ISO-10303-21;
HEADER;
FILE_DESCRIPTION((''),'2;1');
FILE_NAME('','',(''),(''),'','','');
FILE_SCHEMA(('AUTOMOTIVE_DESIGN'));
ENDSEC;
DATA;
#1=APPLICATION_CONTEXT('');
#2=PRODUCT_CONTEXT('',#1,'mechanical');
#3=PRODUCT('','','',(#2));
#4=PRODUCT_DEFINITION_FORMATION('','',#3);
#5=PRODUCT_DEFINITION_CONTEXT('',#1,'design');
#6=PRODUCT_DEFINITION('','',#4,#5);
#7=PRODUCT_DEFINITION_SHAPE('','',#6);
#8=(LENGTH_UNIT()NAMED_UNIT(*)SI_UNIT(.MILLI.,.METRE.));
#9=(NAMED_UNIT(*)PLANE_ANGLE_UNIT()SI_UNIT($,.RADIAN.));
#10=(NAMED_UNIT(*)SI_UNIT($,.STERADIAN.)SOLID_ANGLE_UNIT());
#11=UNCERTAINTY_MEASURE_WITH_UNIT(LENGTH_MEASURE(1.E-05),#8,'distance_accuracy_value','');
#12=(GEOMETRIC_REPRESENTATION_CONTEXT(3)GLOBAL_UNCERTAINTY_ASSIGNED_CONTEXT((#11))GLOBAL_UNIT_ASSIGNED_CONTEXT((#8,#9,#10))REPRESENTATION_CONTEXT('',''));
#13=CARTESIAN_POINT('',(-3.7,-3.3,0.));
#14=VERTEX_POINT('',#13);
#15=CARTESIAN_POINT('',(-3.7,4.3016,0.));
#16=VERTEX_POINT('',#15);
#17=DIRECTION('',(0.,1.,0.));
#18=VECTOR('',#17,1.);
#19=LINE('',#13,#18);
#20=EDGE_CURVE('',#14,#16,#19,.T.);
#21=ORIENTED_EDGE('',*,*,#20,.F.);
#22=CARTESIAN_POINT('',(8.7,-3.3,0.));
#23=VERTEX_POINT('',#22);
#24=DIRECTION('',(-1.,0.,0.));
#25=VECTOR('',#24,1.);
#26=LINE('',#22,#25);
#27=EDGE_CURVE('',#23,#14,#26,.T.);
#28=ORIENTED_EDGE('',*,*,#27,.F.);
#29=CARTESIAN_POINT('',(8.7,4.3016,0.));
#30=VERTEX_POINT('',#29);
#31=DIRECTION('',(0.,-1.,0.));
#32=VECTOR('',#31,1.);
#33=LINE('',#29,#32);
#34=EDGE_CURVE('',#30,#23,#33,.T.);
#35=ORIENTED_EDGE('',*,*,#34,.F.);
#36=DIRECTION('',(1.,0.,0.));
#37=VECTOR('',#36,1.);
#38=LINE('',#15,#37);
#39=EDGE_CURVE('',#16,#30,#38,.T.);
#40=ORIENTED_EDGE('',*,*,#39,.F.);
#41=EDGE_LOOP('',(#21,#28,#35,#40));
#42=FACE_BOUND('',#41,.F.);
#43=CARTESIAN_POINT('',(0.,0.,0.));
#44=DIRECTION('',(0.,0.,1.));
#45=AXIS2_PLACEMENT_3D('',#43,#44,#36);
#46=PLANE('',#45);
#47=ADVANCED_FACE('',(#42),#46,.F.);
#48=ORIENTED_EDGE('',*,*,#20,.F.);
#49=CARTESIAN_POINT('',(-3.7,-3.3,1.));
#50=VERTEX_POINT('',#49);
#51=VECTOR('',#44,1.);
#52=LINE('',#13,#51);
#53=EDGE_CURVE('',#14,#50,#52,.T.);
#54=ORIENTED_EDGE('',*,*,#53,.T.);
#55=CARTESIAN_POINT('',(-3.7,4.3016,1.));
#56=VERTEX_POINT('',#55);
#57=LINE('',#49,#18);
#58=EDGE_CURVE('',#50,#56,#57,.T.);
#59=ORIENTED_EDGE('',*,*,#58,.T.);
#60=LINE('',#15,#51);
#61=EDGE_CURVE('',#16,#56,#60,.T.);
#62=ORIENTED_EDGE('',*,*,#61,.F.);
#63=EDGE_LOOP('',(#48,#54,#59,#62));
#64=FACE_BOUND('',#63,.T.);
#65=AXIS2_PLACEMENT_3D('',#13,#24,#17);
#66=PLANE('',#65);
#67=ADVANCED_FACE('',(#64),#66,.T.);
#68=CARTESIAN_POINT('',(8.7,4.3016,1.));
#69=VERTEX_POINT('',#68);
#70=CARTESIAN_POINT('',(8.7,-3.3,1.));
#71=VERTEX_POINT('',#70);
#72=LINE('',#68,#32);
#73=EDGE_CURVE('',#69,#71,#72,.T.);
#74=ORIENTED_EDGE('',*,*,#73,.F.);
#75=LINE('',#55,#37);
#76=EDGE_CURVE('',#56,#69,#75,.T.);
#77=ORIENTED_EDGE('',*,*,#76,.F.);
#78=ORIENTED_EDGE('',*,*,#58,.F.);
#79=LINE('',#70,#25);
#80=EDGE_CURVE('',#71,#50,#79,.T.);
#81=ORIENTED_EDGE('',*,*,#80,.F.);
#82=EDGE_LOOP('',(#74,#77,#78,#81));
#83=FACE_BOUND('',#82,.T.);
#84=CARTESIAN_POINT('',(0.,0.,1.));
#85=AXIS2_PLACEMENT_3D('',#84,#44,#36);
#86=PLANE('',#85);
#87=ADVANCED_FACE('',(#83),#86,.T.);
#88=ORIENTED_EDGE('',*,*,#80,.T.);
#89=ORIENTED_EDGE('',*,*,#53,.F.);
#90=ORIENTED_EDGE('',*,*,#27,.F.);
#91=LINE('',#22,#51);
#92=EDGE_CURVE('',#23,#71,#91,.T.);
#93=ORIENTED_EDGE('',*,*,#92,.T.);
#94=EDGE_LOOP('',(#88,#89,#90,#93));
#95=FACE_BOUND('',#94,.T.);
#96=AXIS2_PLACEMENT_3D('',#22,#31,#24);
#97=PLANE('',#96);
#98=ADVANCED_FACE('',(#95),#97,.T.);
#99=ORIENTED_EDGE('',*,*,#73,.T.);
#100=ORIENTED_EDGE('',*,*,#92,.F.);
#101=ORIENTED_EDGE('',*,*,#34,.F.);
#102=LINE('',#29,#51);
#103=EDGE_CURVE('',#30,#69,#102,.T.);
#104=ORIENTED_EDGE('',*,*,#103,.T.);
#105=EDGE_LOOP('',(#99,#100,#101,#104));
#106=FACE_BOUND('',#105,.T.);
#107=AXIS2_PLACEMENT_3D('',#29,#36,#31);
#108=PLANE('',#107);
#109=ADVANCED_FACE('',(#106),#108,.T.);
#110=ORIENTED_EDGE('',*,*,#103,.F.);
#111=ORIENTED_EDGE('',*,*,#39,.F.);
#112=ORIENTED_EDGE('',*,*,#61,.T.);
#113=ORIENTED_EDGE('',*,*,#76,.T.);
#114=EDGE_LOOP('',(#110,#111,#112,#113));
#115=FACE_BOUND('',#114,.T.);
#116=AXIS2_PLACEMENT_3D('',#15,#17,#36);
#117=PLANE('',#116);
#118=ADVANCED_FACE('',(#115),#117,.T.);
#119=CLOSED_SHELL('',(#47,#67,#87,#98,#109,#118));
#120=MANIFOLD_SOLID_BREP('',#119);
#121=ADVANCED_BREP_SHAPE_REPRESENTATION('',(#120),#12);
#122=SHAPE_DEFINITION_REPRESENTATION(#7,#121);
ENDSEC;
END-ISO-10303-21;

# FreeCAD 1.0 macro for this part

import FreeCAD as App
import Part
import Sketcher


def add_polygon(sketch, points):
    """Adds a closed chain of lines whose ends are joined by coincident constraints."""
    first, n = sketch.GeometryCount, len(points)
    for a, b in zip(points, points[1:] + points[:1]):
        sketch.addGeometry(Part.LineSegment(App.Vector(*a, 0), App.Vector(*b, 0)), False)
    for i in range(n):
        sketch.addConstraint(Sketcher.Constraint("Coincident", first + i, 2, first + (i + 1) % n, 1))

doc = App.newDocument("Part")
body = doc.addObject("PartDesign::Body", "Body")

sketch1 = body.newObject("Sketcher::SketchObject", "Sketch")
sketch1.AttachmentSupport = (doc.getObject("XY_Plane"), [""])
sketch1.MapMode = "FlatFace"
add_polygon(sketch1, [(8.7, 4.3016), (-3.7, 4.3016), (-3.7, -3.3), (8.7, -3.3)])
sketch1.addConstraint([
    Sketcher.Constraint("Horizontal", 0),
    Sketcher.Constraint("Vertical", 1),
    Sketcher.Constraint("Horizontal", 2),
    Sketcher.Constraint("Vertical", 3),
    Sketcher.Constraint("DistanceX", 0, 2, 0, 1, 12.4),
    Sketcher.Constraint("DistanceX", 0, 2, -1, 1, 3.7),
    Sketcher.Constraint("DistanceY", 1, 2, -1, 1, 3.3),
    Sketcher.Constraint("DistanceY", 1, 2, 1, 1, 7.6016),
])
pad1 = body.newObject("PartDesign::Pad", "Pad")
pad1.Profile = sketch1
pad1.Length = 1

doc.recompute()
